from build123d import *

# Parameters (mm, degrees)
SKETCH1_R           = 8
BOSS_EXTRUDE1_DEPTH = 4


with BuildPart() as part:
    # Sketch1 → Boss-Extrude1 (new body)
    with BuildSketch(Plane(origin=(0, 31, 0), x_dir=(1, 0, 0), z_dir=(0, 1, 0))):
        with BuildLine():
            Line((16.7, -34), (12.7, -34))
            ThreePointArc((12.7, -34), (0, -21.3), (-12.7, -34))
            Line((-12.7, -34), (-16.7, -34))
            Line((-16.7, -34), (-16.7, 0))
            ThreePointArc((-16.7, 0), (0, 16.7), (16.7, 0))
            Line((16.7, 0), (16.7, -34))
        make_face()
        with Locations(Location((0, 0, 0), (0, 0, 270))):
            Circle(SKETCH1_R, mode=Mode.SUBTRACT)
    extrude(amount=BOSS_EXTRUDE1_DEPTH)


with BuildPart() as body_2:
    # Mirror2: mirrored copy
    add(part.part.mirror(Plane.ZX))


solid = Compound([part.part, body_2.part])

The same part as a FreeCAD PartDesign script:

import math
import FreeCAD as App
import Part
import Sketcher

doc = App.newDocument("Part")
body = doc.addObject("PartDesign::Body", "Body")

# Sketch on XZ plane
sketch1 = doc.addObject("Sketcher::SketchObject", "Sketch")
body.addObject(sketch1)
sketch1.AttachmentSupport = (doc.XZ_Plane, [""])
sketch1.MapMode = "FlatFace"
sketch1.AttachmentOffset = App.Placement(App.Vector(0, 0, -31), App.Rotation())
sketch1.addGeometry([
    Part.LineSegment(App.Vector(12.7, 34, 0), App.Vector(16.7, 34, 0)),  # 0
    Part.LineSegment(App.Vector(16.7, 34, 0), App.Vector(16.7, 0, 0)),  # 1
    Part.ArcOfCircle(Part.Circle(App.Vector(0, 0, 0), App.Vector(0, 0, 1), 16.7), math.radians(180), math.radians(360)),  # 2
    Part.LineSegment(App.Vector(-16.7, 0, 0), App.Vector(-16.7, 34, 0)),  # 3
    Part.LineSegment(App.Vector(-16.7, 34, 0), App.Vector(-12.7, 34, 0)),  # 4
    Part.ArcOfCircle(Part.Circle(App.Vector(0, 34, 0), App.Vector(0, 0, 1), 12.7), math.radians(180), math.radians(360)),  # 5
    Part.Circle(App.Vector(0, 0, 0), App.Vector(0, 0, 1), 8),  # 6
], False)
sketch1.addConstraint([
    Sketcher.Constraint("Coincident", 0, 2, 1, 1),
    Sketcher.Constraint("Tangent", 1, 2, 2, 2),
    Sketcher.Constraint("Tangent", 2, 1, 3, 1),
    Sketcher.Constraint("Coincident", 3, 2, 4, 1),
    Sketcher.Constraint("Coincident", 4, 2, 5, 1),
    Sketcher.Constraint("Coincident", 5, 2, 0, 1),
    Sketcher.Constraint("Horizontal", 0),
    Sketcher.Constraint("Vertical", 1),
    Sketcher.Constraint("Vertical", 3),
    Sketcher.Constraint("Horizontal", 4),
    Sketcher.Constraint("Coincident", 2, 3, -1, 1),
    Sketcher.Constraint("Coincident", 6, 3, -1, 1),
    Sketcher.Constraint("Symmetric", 4, 2, 5, 2, -2),
    Sketcher.Constraint("Horizontal", 5, 3, 0, 2),
    Sketcher.Constraint("Diameter", 6, 16.0),
    Sketcher.Constraint("Radius", 2, 16.7),
    Sketcher.Constraint("Radius", 5, 12.7),
    Sketcher.Constraint("DistanceY", 1, 2, 1, 1, 34.0),
])
pad1 = doc.addObject("PartDesign::Pad", "Pad")
body.addObject(pad1)
pad1.Profile = sketch1
pad1.Length = 4
pad1.Reversed = True
body2 = doc.addObject("PartDesign::Body", "Body001")
doc.recompute()

mirroring = doc.addObject("Part::Mirroring", "Mirroring")
mirroring.Source = body
mirroring.Base = App.Vector(0, 0, 0)
mirroring.Normal = App.Vector(0, 1, 0)
body2.BaseFeature = mirroring
doc.recompute()
mirroring.Visibility = False

doc.recompute()
